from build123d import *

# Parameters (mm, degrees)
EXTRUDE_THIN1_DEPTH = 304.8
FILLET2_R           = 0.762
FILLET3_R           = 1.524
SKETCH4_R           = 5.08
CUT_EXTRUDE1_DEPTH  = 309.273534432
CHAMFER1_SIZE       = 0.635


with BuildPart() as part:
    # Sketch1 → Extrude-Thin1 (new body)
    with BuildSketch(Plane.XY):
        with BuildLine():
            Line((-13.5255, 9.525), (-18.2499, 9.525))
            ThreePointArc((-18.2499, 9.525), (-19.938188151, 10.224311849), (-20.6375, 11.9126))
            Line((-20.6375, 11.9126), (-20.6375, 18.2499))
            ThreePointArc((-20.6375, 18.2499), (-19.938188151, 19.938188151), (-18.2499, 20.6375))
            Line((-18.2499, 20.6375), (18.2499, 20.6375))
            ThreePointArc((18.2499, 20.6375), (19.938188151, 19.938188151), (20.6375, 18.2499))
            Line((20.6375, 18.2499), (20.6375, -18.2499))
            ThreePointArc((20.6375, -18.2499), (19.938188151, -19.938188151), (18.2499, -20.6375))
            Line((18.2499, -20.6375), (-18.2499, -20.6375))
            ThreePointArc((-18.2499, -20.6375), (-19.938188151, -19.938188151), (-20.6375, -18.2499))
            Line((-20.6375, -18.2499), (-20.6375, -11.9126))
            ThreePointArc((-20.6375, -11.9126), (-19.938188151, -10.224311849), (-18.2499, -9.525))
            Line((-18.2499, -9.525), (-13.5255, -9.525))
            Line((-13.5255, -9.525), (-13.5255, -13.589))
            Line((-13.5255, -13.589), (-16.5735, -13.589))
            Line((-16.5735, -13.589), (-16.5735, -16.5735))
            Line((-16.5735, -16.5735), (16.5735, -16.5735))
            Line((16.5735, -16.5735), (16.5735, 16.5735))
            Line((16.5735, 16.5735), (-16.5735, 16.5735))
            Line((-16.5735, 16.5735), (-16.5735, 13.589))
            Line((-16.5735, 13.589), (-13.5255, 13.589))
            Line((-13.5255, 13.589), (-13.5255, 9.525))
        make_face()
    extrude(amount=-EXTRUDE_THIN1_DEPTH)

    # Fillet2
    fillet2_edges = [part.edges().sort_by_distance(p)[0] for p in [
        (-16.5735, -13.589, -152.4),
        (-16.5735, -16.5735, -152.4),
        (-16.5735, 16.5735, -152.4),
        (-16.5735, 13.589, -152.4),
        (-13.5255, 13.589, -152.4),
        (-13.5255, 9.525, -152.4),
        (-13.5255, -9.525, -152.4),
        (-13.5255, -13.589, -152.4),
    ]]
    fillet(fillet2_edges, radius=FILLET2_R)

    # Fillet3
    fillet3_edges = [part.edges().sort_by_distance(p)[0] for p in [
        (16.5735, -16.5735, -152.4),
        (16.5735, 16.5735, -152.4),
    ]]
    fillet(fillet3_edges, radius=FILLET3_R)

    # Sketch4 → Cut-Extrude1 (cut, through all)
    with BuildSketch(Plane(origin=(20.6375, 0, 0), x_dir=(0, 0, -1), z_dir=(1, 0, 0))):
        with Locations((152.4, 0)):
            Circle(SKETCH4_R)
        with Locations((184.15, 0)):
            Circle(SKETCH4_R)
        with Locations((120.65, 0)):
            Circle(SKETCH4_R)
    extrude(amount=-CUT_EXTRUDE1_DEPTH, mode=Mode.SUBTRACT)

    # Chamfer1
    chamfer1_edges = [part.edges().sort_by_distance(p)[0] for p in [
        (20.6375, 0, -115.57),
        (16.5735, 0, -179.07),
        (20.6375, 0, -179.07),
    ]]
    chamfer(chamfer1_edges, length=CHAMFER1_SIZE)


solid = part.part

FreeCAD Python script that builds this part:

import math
import FreeCAD as App
import Part
import Sketcher

V = App.Vector
Q = App.Units.Quantity


def edges_at(feature, points):
    """Names of the edges that pass closest to the given points."""
    edges = feature.Shape.Edges
    near = lambda p: min(range(len(edges)), key=lambda i: edges[i].distToShape(Part.Vertex(*p))[0])
    return sorted({f"Edge{near(p) + 1}" for p in points})

doc = App.newDocument("Part")
body = doc.addObject("PartDesign::Body", "Body")

# Sketch on XY plane
sketch1 = body.newObject("Sketcher::SketchObject", "Sketch")
sketch1.AttachmentSupport = (doc.getObject("XY_Plane"), [""])
sketch1.MapMode = "FlatFace"
sketch1.addGeometry([
    Part.LineSegment(V(-18.2499, 9.525, 0), V(-13.5255, 9.525, 0)),  # 0
    Part.LineSegment(V(-13.5255, 9.525, 0), V(-13.5255, 13.589, 0)),  # 1
    Part.LineSegment(V(-13.5255, 13.589, 0), V(-16.5735, 13.589, 0)),  # 2
    Part.LineSegment(V(-16.5735, 13.589, 0), V(-16.5735, 16.5735, 0)),  # 3
    Part.LineSegment(V(-16.5735, 16.5735, 0), V(16.5735, 16.5735, 0)),  # 4
    Part.LineSegment(V(16.5735, 16.5735, 0), V(16.5735, -16.5735, 0)),  # 5
    Part.LineSegment(V(16.5735, -16.5735, 0), V(-16.5735, -16.5735, 0)),  # 6
    Part.LineSegment(V(-16.5735, -16.5735, 0), V(-16.5735, -13.589, 0)),  # 7
    Part.LineSegment(V(-16.5735, -13.589, 0), V(-13.5255, -13.589, 0)),  # 8
    Part.LineSegment(V(-13.5255, -13.589, 0), V(-13.5255, -9.525, 0)),  # 9
    Part.LineSegment(V(-13.5255, -9.525, 0), V(-18.2499, -9.525, 0)),  # 10
    Part.ArcOfCircle(Part.Circle(V(-18.2499, -11.9126, 0), V(0, 0, 1), 2.3876), math.radians(90), math.radians(180)),  # 11
    Part.LineSegment(V(-20.6375, -11.9126, 0), V(-20.6375, -18.2499, 0)),  # 12
    Part.ArcOfCircle(Part.Circle(V(-18.2499, -18.2499, 0), V(0, 0, 1), 2.3876), math.radians(180), math.radians(270)),  # 13
    Part.LineSegment(V(-18.2499, -20.6375, 0), V(18.2499, -20.6375, 0)),  # 14
    Part.ArcOfCircle(Part.Circle(V(18.2499, -18.2499, 0), V(0, 0, 1), 2.3876), math.radians(-90), math.radians(0)),  # 15
    Part.LineSegment(V(20.6375, -18.2499, 0), V(20.6375, 18.2499, 0)),  # 16
    Part.ArcOfCircle(Part.Circle(V(18.2499, 18.2499, 0), V(0, 0, 1), 2.3876), math.radians(0), math.radians(90)),  # 17
    Part.LineSegment(V(18.2499, 20.6375, 0), V(-18.2499, 20.6375, 0)),  # 18
    Part.ArcOfCircle(Part.Circle(V(-18.2499, 18.2499, 0), V(0, 0, 1), 2.3876), math.radians(90), math.radians(180)),  # 19
    Part.LineSegment(V(-20.6375, 18.2499, 0), V(-20.6375, 11.9126, 0)),  # 20
    Part.ArcOfCircle(Part.Circle(V(-18.2499, 11.9126, 0), V(0, 0, 1), 2.3876), math.radians(180), math.radians(270)),  # 21
], False)
sketch1.addConstraint([
    Sketcher.Constraint("Coincident", 0, 2, 1, 1),
    Sketcher.Constraint("Coincident", 1, 2, 2, 1),
    Sketcher.Constraint("Coincident", 2, 2, 3, 1),
    Sketcher.Constraint("Coincident", 3, 2, 4, 1),
    Sketcher.Constraint("Coincident", 4, 2, 5, 1),
    Sketcher.Constraint("Coincident", 5, 2, 6, 1),
    Sketcher.Constraint("Coincident", 6, 2, 7, 1),
    Sketcher.Constraint("Coincident", 7, 2, 8, 1),
    Sketcher.Constraint("Coincident", 8, 2, 9, 1),
    Sketcher.Constraint("Coincident", 9, 2, 10, 1),
    Sketcher.Constraint("Tangent", 10, 2, 11, 1),
    Sketcher.Constraint("Tangent", 11, 2, 12, 1),
    Sketcher.Constraint("Tangent", 12, 2, 13, 1),
    Sketcher.Constraint("Tangent", 13, 2, 14, 1),
    Sketcher.Constraint("Tangent", 14, 2, 15, 1),
    Sketcher.Constraint("Tangent", 15, 2, 16, 1),
    Sketcher.Constraint("Tangent", 16, 2, 17, 1),
    Sketcher.Constraint("Tangent", 17, 2, 18, 1),
    Sketcher.Constraint("Tangent", 18, 2, 19, 1),
    Sketcher.Constraint("Tangent", 19, 2, 20, 1),
    Sketcher.Constraint("Tangent", 20, 2, 21, 1),
    Sketcher.Constraint("Tangent", 21, 2, 0, 1),
    Sketcher.Constraint("Horizontal", 0),
    Sketcher.Constraint("Vertical", 1),
    Sketcher.Constraint("Horizontal", 2),
    Sketcher.Constraint("Vertical", 3),
    Sketcher.Constraint("Horizontal", 4),
    Sketcher.Constraint("Vertical", 5),
    Sketcher.Constraint("Horizontal", 6),
    Sketcher.Constraint("Vertical", 7),
    Sketcher.Constraint("Horizontal", 8),
    Sketcher.Constraint("Vertical", 9),
    Sketcher.Constraint("Horizontal", 10),
    Sketcher.Constraint("Vertical", 12),
    Sketcher.Constraint("Horizontal", 14),
    Sketcher.Constraint("Vertical", 16),
    Sketcher.Constraint("Horizontal", 18),
    Sketcher.Constraint("Vertical", 20),
    Sketcher.Constraint("Equal", 11, 13),
    Sketcher.Constraint("Equal", 13, 15),
    Sketcher.Constraint("Equal", 15, 17),
    Sketcher.Constraint("Equal", 17, 19),
    Sketcher.Constraint("Equal", 19, 21),
    Sketcher.Constraint("Symmetric", 13, 3, 17, 3, -1, 1),
    Sketcher.Constraint("Symmetric", 3, 2, 5, 2, -1, 1),
    Sketcher.Constraint("Symmetric", 11, 3, 21, 3, -1),
    Sketcher.Constraint("Symmetric", 2, 2, 7, 2, -1),
    Sketcher.Constraint("Vertical", 1, 2, 8, 2),
    Sketcher.Constraint("Equal", 6, 5),
    Sketcher.Constraint("Equal", 18, 16),
    Sketcher.Constraint("Radius", 11, Q("0.094 in")),
    Sketcher.Constraint("DistanceX", 2, 2, 2, 1, Q("0.12 in")),
    Sketcher.Constraint("DistanceY", 1, 1, 1, 2, Q("0.16 in")),
    Sketcher.Constraint("DistanceX", 0, 1, 0, 2, Q("0.186 in")),
    Sketcher.Constraint("DistanceX", 4, 1, 4, 2, Q("1.305 in")),
    Sketcher.Constraint("DistanceY", 7, 2, 0, 2, Q("0.91 in")),
])
pad1 = body.newObject("PartDesign::Pad", "Pad")
pad1.Profile = sketch1
pad1.Length = Q("12 in")
pad1.Reversed = True
doc.recompute()

fillet = body.newObject("PartDesign::Fillet", "Fillet")
fillet.Base = (pad1, edges_at(pad1, [
    (-16.573, -13.589, -152.4),
    (-16.573, -16.573, -152.4),
    (-16.573, 16.573, -152.4),
    (-16.573, 13.589, -152.4),
    (-13.525, 13.589, -152.4),
    (-13.525, 9.525, -152.4),
    (-13.525, -9.525, -152.4),
    (-13.525, -13.589, -152.4),
]))
fillet.Radius = Q("0.03 in")
doc.recompute()

fillet2 = body.newObject("PartDesign::Fillet", "Fillet001")
fillet2.Base = (fillet, edges_at(fillet, [(16.573, -16.573, -152.4), (16.573, 16.573, -152.4)]))
fillet2.Radius = Q("0.06 in")

# Sketch on YZ plane
sketch2 = body.newObject("Sketcher::SketchObject", "Sketch001")
sketch2.AttachmentSupport = (doc.getObject("YZ_Plane"), [""])
sketch2.MapMode = "FlatFace"
sketch2.AttachmentOffset = App.Placement(V(0, 0, 0.8125 * 25.4), App.Rotation())
sketch2.addGeometry([
    Part.Circle(V(0, -152.4, 0), V(0, 0, 1), 5.08),
    Part.Circle(V(0, -184.15, 0), V(0, 0, 1), 5.08),
    Part.Circle(V(0, -120.65, 0), V(0, 0, 1), 5.08),
], False)
sketch2.addConstraint([
    Sketcher.Constraint("Equal", 0, 1),
    Sketcher.Constraint("Equal", 1, 2),
    Sketcher.Constraint("PointOnObject", 0, 3, -2),
    Sketcher.Constraint("PointOnObject", 1, 3, -2),
    Sketcher.Constraint("PointOnObject", 2, 3, -2),
    Sketcher.Constraint("Diameter", 0, Q("0.4 in")),
    Sketcher.Constraint("DistanceY", 0, 3, -1, 1, Q("6 in")),
    Sketcher.Constraint("DistanceY", 1, 3, 2, 3, Q("2.5 in")),
    Sketcher.Constraint("DistanceY", 1, 3, -1, 1, Q("7.25 in")),
])
pocket1 = body.newObject("PartDesign::Pocket", "Pocket")
pocket1.Profile = sketch2
pocket1.Type = "ThroughAll"
doc.recompute()

chamfer = body.newObject("PartDesign::Chamfer", "Chamfer")
chamfer.Base = (pocket1, edges_at(pocket1, [(20.637, 0, -115.57), (16.573, 0, -179.07), (20.637, 0, -179.07)]))
chamfer.Size = Q("0.025 in")

doc.recompute()
